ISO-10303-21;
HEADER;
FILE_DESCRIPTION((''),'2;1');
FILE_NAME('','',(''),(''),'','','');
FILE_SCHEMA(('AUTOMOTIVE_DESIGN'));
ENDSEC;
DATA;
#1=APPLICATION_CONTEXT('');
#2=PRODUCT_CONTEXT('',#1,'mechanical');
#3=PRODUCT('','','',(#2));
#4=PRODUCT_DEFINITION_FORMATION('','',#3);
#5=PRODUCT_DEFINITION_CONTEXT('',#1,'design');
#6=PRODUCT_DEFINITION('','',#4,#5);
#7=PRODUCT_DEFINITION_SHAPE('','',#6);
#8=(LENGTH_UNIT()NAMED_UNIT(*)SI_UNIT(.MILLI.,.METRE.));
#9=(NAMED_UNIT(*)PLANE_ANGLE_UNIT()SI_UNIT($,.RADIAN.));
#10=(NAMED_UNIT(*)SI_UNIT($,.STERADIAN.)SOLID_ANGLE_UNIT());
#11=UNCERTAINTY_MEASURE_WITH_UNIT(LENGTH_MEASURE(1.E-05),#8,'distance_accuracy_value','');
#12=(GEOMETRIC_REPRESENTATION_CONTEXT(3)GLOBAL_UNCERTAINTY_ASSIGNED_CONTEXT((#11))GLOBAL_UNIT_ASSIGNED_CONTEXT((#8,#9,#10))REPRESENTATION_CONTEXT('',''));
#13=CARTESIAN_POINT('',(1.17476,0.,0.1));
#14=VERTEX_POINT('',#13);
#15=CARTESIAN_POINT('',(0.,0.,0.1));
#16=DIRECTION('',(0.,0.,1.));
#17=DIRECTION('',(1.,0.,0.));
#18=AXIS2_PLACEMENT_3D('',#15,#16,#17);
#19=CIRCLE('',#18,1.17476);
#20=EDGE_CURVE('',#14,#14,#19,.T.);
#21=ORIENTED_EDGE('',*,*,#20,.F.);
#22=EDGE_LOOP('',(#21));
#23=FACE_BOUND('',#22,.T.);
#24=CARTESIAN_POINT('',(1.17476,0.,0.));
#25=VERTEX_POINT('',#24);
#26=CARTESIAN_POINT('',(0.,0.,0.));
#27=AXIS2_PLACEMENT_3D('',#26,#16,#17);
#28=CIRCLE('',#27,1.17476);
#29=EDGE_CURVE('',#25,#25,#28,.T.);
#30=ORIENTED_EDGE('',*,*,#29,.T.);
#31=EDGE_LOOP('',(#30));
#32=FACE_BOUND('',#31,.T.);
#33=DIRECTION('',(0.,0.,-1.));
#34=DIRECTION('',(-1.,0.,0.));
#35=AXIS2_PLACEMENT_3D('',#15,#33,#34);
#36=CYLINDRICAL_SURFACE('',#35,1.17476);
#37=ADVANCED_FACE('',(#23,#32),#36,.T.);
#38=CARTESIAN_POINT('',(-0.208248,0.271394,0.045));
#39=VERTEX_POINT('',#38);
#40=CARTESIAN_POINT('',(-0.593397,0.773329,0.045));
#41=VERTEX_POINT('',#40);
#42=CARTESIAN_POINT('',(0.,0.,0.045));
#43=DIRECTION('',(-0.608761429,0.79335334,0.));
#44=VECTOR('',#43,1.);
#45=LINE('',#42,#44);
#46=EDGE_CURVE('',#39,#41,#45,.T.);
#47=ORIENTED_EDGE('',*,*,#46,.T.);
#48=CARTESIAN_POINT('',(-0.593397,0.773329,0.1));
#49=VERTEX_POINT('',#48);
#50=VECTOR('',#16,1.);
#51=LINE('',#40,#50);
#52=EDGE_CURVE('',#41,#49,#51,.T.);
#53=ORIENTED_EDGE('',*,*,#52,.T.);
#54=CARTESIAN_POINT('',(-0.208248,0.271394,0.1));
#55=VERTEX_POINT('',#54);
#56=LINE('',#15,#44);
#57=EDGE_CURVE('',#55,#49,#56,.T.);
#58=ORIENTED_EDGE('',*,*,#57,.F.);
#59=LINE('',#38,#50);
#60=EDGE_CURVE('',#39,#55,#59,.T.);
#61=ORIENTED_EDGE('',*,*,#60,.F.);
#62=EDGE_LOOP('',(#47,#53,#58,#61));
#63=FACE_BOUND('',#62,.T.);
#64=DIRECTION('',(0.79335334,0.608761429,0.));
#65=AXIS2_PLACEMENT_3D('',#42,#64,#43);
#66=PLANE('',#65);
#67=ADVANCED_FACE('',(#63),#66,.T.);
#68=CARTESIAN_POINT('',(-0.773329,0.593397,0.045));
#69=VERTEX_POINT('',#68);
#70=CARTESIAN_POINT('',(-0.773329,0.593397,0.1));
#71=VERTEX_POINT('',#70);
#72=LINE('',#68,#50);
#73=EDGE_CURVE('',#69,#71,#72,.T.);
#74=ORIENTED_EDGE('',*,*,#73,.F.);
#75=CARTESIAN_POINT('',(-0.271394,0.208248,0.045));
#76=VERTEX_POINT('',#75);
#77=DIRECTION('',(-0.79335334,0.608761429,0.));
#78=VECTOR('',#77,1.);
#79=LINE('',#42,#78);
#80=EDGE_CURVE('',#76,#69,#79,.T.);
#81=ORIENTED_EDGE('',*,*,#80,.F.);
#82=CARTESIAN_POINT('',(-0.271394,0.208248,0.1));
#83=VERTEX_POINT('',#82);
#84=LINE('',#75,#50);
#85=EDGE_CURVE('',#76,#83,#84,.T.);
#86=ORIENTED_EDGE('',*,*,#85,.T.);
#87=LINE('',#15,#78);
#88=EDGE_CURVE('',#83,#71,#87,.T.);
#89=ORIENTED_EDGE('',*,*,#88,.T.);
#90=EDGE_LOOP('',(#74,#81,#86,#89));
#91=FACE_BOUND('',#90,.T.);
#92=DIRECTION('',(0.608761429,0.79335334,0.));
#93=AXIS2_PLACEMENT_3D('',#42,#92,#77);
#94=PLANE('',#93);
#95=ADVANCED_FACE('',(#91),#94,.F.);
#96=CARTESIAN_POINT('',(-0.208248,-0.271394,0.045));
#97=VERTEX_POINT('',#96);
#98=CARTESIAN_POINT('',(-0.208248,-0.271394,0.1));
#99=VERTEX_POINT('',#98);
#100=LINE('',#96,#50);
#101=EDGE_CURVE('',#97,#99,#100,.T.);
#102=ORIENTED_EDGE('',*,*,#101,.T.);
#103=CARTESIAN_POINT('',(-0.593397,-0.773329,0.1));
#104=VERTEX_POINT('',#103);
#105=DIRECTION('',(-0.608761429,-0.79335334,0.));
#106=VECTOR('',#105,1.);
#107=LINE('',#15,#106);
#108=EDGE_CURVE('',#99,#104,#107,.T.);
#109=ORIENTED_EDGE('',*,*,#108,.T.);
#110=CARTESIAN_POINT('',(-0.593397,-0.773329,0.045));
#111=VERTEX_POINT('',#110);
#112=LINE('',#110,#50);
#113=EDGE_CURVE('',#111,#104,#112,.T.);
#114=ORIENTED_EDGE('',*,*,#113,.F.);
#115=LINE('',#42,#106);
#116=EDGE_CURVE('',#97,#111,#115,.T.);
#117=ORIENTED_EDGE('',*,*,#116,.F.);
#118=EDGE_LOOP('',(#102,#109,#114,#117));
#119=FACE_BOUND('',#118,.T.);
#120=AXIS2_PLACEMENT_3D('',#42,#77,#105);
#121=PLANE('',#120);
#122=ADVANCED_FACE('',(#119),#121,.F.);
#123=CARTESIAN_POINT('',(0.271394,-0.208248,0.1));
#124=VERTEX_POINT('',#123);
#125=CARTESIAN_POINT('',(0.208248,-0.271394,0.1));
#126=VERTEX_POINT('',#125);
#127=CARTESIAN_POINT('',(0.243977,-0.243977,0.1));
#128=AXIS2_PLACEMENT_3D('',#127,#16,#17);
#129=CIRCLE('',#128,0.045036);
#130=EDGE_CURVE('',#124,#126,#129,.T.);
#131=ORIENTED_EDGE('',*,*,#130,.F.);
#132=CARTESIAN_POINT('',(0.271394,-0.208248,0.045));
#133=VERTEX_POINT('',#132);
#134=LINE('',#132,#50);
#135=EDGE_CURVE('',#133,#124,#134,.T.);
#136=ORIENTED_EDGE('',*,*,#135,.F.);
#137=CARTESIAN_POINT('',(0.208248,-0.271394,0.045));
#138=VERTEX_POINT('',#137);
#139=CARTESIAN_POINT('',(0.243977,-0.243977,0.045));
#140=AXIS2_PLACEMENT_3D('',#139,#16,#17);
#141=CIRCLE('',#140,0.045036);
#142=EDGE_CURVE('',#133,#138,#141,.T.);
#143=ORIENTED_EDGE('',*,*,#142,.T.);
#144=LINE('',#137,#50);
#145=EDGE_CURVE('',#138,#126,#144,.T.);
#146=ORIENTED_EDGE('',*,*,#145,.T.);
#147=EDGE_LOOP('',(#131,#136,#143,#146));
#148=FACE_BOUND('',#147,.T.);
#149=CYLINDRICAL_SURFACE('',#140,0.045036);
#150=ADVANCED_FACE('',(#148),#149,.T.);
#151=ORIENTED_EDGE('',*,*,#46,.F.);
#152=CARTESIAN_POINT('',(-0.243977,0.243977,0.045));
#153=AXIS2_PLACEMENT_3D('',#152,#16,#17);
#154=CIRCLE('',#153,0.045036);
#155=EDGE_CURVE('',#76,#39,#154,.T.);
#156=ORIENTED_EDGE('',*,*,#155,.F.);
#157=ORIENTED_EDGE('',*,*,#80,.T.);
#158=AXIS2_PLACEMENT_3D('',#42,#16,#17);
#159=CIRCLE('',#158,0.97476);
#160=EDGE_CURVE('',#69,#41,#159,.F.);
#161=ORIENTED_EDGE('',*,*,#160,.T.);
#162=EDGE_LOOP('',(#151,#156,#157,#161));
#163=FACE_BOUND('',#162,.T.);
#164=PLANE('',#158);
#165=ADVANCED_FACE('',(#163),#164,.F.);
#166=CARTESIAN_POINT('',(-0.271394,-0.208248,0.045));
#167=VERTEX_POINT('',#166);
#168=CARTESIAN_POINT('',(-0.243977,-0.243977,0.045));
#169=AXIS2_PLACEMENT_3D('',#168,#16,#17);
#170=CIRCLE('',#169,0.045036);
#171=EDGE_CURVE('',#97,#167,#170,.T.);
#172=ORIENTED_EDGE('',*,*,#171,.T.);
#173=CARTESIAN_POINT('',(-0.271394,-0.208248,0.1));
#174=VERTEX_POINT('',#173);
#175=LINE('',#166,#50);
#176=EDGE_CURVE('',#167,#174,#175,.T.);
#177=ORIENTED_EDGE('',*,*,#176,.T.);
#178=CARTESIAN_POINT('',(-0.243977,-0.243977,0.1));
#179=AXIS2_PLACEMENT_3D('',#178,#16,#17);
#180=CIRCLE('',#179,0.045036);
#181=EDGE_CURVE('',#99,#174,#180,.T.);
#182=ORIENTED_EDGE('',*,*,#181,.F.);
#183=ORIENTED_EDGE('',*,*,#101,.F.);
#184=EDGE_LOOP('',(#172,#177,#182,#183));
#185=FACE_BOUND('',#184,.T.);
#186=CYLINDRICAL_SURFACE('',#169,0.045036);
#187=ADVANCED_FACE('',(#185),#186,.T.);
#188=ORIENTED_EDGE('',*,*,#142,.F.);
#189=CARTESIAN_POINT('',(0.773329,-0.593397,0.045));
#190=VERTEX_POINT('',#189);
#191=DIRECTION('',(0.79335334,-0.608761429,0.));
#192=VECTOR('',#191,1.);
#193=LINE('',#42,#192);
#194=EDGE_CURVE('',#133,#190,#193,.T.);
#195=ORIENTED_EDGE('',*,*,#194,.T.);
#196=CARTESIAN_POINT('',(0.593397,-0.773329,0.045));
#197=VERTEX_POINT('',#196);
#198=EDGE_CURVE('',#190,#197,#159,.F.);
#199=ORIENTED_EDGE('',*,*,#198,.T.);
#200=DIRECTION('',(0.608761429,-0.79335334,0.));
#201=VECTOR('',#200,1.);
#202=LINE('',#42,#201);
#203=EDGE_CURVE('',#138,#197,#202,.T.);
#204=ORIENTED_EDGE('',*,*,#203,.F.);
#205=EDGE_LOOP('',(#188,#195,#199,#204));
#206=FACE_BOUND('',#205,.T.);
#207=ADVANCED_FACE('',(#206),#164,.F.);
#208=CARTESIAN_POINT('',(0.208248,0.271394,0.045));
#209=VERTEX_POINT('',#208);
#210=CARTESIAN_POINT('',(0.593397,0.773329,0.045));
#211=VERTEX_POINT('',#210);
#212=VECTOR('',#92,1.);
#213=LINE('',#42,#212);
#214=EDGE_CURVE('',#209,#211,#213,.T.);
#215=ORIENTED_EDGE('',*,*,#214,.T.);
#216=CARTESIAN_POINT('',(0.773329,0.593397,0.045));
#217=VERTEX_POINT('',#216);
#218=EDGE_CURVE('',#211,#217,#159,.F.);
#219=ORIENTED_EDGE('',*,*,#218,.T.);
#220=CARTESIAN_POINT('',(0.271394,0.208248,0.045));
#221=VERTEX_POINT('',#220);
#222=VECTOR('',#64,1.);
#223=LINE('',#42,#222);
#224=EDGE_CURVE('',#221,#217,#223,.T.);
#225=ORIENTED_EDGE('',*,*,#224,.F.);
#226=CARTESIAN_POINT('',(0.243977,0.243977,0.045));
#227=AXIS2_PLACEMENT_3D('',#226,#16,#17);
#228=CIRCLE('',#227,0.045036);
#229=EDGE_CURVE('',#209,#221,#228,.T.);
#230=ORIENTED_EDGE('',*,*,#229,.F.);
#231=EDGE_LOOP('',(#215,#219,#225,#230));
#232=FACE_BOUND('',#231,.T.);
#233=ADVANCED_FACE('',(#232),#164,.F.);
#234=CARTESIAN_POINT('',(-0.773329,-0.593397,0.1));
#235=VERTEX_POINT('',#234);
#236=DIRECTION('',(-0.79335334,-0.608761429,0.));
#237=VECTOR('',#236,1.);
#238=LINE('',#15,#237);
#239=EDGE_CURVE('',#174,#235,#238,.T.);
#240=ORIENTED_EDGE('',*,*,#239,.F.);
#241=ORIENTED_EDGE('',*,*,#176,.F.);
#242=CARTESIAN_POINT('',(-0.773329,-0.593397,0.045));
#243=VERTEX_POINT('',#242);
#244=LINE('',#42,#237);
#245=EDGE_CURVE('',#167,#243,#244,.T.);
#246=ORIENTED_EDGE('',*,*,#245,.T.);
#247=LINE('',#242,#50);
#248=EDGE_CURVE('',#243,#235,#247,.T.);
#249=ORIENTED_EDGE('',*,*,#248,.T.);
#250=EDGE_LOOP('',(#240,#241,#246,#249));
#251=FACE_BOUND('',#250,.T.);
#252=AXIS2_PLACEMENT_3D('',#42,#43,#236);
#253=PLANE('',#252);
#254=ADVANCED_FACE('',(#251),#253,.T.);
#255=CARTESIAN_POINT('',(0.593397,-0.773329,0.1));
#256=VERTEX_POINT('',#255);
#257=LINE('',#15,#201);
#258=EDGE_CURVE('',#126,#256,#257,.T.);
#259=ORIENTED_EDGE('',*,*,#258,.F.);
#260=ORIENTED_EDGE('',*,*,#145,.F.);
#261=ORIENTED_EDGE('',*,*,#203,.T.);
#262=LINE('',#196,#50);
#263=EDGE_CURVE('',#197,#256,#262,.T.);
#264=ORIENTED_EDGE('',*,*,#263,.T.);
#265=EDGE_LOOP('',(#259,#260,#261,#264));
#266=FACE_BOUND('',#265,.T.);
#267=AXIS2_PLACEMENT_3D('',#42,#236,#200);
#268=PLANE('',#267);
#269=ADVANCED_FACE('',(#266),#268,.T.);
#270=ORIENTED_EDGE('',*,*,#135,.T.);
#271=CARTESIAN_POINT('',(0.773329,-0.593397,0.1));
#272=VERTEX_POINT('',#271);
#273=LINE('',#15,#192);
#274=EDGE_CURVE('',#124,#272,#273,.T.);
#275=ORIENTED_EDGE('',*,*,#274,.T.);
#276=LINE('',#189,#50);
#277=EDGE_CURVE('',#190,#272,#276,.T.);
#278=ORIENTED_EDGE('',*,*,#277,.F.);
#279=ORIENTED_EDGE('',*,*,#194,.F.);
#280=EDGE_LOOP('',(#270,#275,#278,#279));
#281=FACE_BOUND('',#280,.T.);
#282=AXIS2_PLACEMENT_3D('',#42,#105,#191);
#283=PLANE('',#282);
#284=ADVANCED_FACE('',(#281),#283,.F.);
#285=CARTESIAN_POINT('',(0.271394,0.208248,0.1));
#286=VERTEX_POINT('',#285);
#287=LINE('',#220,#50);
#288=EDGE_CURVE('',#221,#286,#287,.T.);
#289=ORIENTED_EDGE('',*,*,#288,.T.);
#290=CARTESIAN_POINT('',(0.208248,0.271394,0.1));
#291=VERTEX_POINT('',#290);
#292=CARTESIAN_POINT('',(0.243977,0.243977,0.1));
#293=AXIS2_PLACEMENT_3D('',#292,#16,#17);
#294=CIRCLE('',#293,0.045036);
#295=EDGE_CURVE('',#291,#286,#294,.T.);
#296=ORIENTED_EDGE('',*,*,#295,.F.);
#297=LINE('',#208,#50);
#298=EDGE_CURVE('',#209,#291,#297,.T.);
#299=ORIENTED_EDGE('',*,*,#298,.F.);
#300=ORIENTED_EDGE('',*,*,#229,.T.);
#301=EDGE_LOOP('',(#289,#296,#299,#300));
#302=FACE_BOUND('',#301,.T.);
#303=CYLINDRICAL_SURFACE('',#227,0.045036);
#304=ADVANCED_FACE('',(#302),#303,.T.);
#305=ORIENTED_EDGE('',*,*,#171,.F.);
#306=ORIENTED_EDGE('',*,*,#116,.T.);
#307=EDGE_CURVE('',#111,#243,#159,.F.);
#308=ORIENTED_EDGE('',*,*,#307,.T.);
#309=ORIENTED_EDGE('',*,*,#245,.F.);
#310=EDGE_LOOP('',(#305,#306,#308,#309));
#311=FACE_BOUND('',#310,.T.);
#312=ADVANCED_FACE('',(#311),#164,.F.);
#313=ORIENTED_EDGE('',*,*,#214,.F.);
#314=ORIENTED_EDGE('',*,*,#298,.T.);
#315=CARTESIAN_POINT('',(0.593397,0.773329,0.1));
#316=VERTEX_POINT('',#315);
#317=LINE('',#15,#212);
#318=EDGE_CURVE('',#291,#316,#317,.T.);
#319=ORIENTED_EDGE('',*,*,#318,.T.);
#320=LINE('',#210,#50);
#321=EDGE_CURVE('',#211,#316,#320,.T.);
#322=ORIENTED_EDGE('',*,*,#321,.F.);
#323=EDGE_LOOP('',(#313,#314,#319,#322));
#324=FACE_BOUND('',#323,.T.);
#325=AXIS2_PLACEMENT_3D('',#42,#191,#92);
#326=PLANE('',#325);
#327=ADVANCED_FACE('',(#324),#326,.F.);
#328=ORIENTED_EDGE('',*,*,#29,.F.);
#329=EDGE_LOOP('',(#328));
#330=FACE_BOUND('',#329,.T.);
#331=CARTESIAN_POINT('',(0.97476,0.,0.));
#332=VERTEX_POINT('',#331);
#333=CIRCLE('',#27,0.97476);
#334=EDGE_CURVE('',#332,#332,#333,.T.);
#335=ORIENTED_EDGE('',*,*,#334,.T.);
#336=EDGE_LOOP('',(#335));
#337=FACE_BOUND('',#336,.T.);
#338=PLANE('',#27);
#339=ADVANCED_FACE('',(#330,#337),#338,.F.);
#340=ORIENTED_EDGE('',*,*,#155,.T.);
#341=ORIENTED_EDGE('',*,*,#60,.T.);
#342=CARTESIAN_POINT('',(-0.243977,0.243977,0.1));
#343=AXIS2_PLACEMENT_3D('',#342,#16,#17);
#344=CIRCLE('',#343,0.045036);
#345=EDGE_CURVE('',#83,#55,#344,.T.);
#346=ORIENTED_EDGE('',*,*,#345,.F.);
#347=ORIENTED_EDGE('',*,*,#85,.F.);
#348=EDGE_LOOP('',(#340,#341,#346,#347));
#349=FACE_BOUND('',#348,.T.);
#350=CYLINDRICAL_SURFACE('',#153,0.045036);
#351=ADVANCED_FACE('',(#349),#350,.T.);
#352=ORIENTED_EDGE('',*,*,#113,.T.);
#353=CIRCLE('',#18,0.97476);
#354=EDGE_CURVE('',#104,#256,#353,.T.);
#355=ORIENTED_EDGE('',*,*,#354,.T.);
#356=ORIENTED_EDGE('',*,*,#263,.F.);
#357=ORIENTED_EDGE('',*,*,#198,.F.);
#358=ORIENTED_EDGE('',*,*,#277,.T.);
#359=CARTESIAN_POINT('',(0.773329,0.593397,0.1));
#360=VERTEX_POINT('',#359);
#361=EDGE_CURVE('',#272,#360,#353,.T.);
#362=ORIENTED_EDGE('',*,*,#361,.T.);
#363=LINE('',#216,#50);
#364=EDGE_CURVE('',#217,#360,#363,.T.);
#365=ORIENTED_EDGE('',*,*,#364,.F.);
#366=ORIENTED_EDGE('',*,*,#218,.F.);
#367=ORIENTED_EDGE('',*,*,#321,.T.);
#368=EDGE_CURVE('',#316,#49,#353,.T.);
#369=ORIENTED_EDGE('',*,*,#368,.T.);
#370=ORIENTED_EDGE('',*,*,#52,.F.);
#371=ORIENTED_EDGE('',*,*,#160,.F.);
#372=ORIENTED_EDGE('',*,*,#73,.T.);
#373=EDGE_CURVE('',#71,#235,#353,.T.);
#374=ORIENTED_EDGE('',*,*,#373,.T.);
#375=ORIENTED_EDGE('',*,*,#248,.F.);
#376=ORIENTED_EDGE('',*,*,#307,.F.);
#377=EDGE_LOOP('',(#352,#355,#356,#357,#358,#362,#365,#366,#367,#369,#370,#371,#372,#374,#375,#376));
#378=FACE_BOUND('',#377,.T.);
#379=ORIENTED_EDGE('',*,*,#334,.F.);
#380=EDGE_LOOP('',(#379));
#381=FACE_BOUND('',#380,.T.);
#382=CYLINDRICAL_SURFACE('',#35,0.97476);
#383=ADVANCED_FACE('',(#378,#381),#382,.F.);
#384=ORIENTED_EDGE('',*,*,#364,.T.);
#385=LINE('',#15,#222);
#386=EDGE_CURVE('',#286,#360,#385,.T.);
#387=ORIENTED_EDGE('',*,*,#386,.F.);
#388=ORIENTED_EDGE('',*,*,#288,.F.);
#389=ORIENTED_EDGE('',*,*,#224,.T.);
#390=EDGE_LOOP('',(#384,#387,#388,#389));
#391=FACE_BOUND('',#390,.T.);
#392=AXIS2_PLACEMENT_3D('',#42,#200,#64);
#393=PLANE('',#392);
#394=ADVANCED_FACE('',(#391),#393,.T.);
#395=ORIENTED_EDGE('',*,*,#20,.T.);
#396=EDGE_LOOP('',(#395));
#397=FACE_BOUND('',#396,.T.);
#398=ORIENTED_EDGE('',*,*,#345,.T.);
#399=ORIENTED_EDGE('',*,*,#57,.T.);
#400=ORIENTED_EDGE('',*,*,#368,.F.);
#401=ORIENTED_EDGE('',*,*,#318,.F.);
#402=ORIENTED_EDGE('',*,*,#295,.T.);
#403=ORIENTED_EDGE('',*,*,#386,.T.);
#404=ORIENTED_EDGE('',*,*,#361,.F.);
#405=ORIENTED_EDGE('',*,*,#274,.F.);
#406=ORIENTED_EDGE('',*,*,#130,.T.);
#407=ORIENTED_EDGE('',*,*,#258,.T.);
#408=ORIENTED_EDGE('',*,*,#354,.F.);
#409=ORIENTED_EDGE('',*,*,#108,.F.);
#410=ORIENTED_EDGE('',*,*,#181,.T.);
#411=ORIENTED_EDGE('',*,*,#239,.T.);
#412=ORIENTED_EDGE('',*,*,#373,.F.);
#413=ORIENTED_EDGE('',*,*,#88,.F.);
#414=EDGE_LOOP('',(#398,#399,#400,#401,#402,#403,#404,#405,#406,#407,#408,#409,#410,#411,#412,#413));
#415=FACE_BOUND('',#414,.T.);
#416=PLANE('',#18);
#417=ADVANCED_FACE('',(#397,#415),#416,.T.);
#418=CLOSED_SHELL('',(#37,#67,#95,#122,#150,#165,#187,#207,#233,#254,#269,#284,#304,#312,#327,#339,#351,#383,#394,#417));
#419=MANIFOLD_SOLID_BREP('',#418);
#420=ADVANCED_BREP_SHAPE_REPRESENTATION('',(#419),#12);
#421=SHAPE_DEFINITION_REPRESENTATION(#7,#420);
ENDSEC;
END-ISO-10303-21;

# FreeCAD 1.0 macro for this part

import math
import FreeCAD as App
import Part
import Sketcher
from FreeCAD import Vector
Q = App.Units.Quantity

doc = App.newDocument("Part")
body = doc.addObject("PartDesign::Body", "Body")

sketch1 = doc.addObject("Sketcher::SketchObject", "Sketch")
body.addObject(sketch1)
sketch1.AttachmentSupport = (doc.XY_Plane, [""])
sketch1.MapMode = "FlatFace"
sketch1.addGeometry([
    Part.Circle(Vector(0, 0, 0), Vector(0, 0, 1), 1.2),
    Part.Circle(Vector(0, 0, 0), Vector(0, 0, 1), 1),
], False)
sketch1.addConstraint([
    Sketcher.Constraint("Coincident", 0, 3, -1, 1),
    Sketcher.Constraint("Coincident", 1, 3, -1, 1),
    Sketcher.Constraint("Diameter", 0, 2.349521),
    Sketcher.Constraint("Diameter", 1, 1.949521),
])
pad1 = doc.addObject("PartDesign::Pad", "Pad")
body.addObject(pad1)
pad1.Profile = sketch1
pad1.Length = 0.1

sketch2 = doc.addObject("Sketcher::SketchObject", "Sketch001")
body.addObject(sketch2)
sketch2.AttachmentSupport = (doc.XY_Plane, [""])
sketch2.MapMode = "FlatFace"
sketch2.AttachmentOffset = App.Placement(Vector(0, 0, 0.045), App.Rotation())
sketch2.addGeometry([
    Part.LineSegment(Vector(-0.208, 0.271, 0), Vector(-0.593, 0.773, 0)),
    Part.ArcOfCircle(Part.Circle(Vector(0, 0, 0), Vector(0, 0, 1), 0.975), math.radians(127.5), math.radians(142.5)),
    Part.LineSegment(Vector(-0.773, 0.593, 0), Vector(-0.271, 0.208, 0)),
    Part.ArcOfCircle(Part.Circle(Vector(-0.244, 0.244, 0), Vector(0, 0, 1), 0.045), math.radians(-128), math.radians(-45)),
    Part.ArcOfCircle(Part.Circle(Vector(-0.244, 0.244, 0), Vector(0, 0, 1), 0.045), math.radians(-45), math.radians(38)),
    Part.ArcOfCircle(Part.Circle(Vector(0.244, 0.244, 0), Vector(0, 0, 1), 0.045), math.radians(142), math.radians(225)),
    Part.ArcOfCircle(Part.Circle(Vector(0.244, 0.244, 0), Vector(0, 0, 1), 0.045), math.radians(-135), math.radians(-52)),
    Part.LineSegment(Vector(0.271, 0.208, 0), Vector(0.773, 0.593, 0)),
    Part.ArcOfCircle(Part.Circle(Vector(0, 0, 0), Vector(0, 0, 1), 0.975), math.radians(37.5), math.radians(52.5)),
    Part.LineSegment(Vector(0.593, 0.773, 0), Vector(0.208, 0.271, 0)),
    Part.ArcOfCircle(Part.Circle(Vector(0.244, -0.244, 0), Vector(0, 0, 1), 0.045), math.radians(52), math.radians(135)),
    Part.ArcOfCircle(Part.Circle(Vector(0.244, -0.244, 0), Vector(0, 0, 1), 0.045), math.radians(135), math.radians(218)),
    Part.LineSegment(Vector(0.208, -0.271, 0), Vector(0.593, -0.773, 0)),
    Part.ArcOfCircle(Part.Circle(Vector(0, 0, 0), Vector(0, 0, 1), 0.975), math.radians(-52.5), math.radians(-37.5)),
    Part.LineSegment(Vector(0.773, -0.593, 0), Vector(0.271, -0.208, 0)),
    Part.ArcOfCircle(Part.Circle(Vector(-0.244, -0.244, 0), Vector(0, 0, 1), 0.045), math.radians(-38), math.radians(45)),
    Part.ArcOfCircle(Part.Circle(Vector(-0.244, -0.244, 0), Vector(0, 0, 1), 0.045), math.radians(45), math.radians(128)),
    Part.LineSegment(Vector(-0.271, -0.208, 0), Vector(-0.773, -0.593, 0)),
    Part.ArcOfCircle(Part.Circle(Vector(0, 0, 0), Vector(0, 0, 1), 0.975), math.radians(-142.5), math.radians(-127.5)),
    Part.LineSegment(Vector(-0.593, -0.773, 0), Vector(-0.208, -0.271, 0)),
], False)
sketch2.addConstraint([
    Sketcher.Constraint("Coincident", 0, 2, 1, 1),
    Sketcher.Constraint("Coincident", 1, 2, 2, 1),
    Sketcher.Constraint("Tangent", 2, 2, 3, 1),
    Sketcher.Constraint("Tangent", 3, 2, 4, 1),
    Sketcher.Constraint("Tangent", 4, 2, 0, 1),
    Sketcher.Constraint("Tangent", 5, 2, 6, 1),
    Sketcher.Constraint("Tangent", 6, 2, 7, 1),
    Sketcher.Constraint("Coincident", 7, 2, 8, 1),
    Sketcher.Constraint("Coincident", 8, 2, 9, 1),
    Sketcher.Constraint("Tangent", 9, 2, 5, 1),
    Sketcher.Constraint("Tangent", 10, 2, 11, 1),
    Sketcher.Constraint("Tangent", 11, 2, 12, 1),
    Sketcher.Constraint("Coincident", 12, 2, 13, 1),
    Sketcher.Constraint("Coincident", 13, 2, 14, 1),
    Sketcher.Constraint("Tangent", 14, 2, 10, 1),
    Sketcher.Constraint("Tangent", 15, 2, 16, 1),
    Sketcher.Constraint("Tangent", 16, 2, 17, 1),
    Sketcher.Constraint("Coincident", 17, 2, 18, 1),
    Sketcher.Constraint("Coincident", 18, 2, 19, 1),
    Sketcher.Constraint("Tangent", 19, 2, 15, 1),
    Sketcher.Constraint("Coincident", 1, 3, -1, 1),
    Sketcher.Constraint("Coincident", 8, 3, -1, 1),
    Sketcher.Constraint("Coincident", 13, 3, -1, 1),
    Sketcher.Constraint("Coincident", 18, 3, -1, 1),
    Sketcher.Constraint("Equal", 3, 4),
    Sketcher.Constraint("Equal", 4, 5),
    Sketcher.Constraint("Equal", 5, 6),
    Sketcher.Constraint("Equal", 1, 8),
    Sketcher.Constraint("Equal", 6, 10),
    Sketcher.Constraint("Equal", 10, 11),
    Sketcher.Constraint("Equal", 8, 13),
    Sketcher.Constraint("Equal", 11, 15),
    Sketcher.Constraint("Equal", 15, 16),
    Sketcher.Constraint("Equal", 13, 18),
    Sketcher.Constraint("Symmetric", 3, 3, 10, 3, -1, 1),
    Sketcher.Constraint("Symmetric", 5, 3, 15, 3, -1, 1),
    Sketcher.Constraint("Symmetric", 3, 3, 5, 3, -2),
    Sketcher.Constraint("Perpendicular", 0, 7),
    Sketcher.Constraint("Perpendicular", 2, 9),
    Sketcher.Constraint("Perpendicular", 7, 12),
    Sketcher.Constraint("Perpendicular", 9, 14),
    Sketcher.Constraint("Perpendicular", 12, 17),
    Sketcher.Constraint("Perpendicular", 14, 19),
    Sketcher.Constraint("Horizontal", 3, 2, 5, 2),
    Sketcher.Constraint("Horizontal", 2, 2, 6, 2),
    Sketcher.Constraint("Horizontal", 10, 2, 15, 2),
    Sketcher.Constraint("Vertical", 5, 2, 10, 2),
    Sketcher.Constraint("Equal", 0, 2),
    Sketcher.Constraint("Angle", 0, Q("127.5 deg")),
    Sketcher.Constraint("Radius", 1, 0.97476),
    Sketcher.Constraint("Radius", 3, 0.045036),
    Sketcher.Constraint("DistanceY", -1, 1, 0, 2, 0.773329),
    Sketcher.Constraint("DistanceX", 2, 2, 3, 2, 0.059262),
])
pad2 = doc.addObject("PartDesign::Pad", "Pad001")
body.addObject(pad2)
pad2.Profile = sketch2
pad2.Length = 0.055

doc.recompute()
